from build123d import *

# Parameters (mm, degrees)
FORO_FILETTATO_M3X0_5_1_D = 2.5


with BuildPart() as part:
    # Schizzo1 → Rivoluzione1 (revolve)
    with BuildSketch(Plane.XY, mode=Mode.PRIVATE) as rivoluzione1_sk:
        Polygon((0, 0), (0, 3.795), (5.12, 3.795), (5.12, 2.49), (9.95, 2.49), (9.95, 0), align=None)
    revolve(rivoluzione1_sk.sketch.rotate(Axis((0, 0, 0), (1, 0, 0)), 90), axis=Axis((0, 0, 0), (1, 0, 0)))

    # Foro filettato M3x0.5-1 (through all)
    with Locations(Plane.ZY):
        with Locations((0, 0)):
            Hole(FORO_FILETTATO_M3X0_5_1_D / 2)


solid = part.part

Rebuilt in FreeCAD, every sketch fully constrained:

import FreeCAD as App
import Part
import Sketcher
from FreeCAD import Vector
Q = App.Units.Quantity

doc = App.newDocument("Part")
body = doc.addObject("PartDesign::Body", "Body")

sketch1 = doc.addObject("Sketcher::SketchObject", "Sketch")
body.addObject(sketch1)
sketch1.AttachmentSupport = (doc.XY_Plane, [""])
sketch1.MapMode = "FlatFace"
sketch1.addGeometry([
    Part.LineSegment(Vector(0, 3.8, 0), Vector(0, 0, 0)),
    Part.LineSegment(Vector(0, 0, 0), Vector(9.9, 0, 0)),
    Part.LineSegment(Vector(9.9, 0, 0), Vector(9.9, 2.5, 0)),
    Part.LineSegment(Vector(9.9, 2.5, 0), Vector(5.1, 2.5, 0)),
    Part.LineSegment(Vector(5.1, 2.5, 0), Vector(5.1, 3.8, 0)),
    Part.LineSegment(Vector(5.1, 3.8, 0), Vector(0, 3.8, 0)),
], False)
sketch1.addConstraint([
    Sketcher.Constraint("Coincident", 0, 2, 1, 1),
    Sketcher.Constraint("Coincident", 1, 2, 2, 1),
    Sketcher.Constraint("Coincident", 2, 2, 3, 1),
    Sketcher.Constraint("Coincident", 3, 2, 4, 1),
    Sketcher.Constraint("Coincident", 4, 2, 5, 1),
    Sketcher.Constraint("Coincident", 5, 2, 0, 1),
    Sketcher.Constraint("Vertical", 0),
    Sketcher.Constraint("Horizontal", 1),
    Sketcher.Constraint("Vertical", 2),
    Sketcher.Constraint("Horizontal", 3),
    Sketcher.Constraint("Vertical", 4),
    Sketcher.Constraint("Horizontal", 5),
    Sketcher.Constraint("Coincident", 0, 2, -1, 1),
    Sketcher.Constraint("DistanceX", 1, 1, 1, 2, Q("9.95 mm")),
    Sketcher.Constraint("DistanceX", 3, 2, 3, 1, Q("4.83 mm")),
    Sketcher.Constraint("DistanceY", 2, 1, 2, 2, Q("2.49 mm")),
    Sketcher.Constraint("DistanceY", 0, 2, 0, 1, Q("3.795 mm")),
])
revolution = doc.addObject("PartDesign::Revolution", "Revolution")
body.addObject(revolution)
revolution.Profile = sketch1
revolution.ReferenceAxis = (sketch1, ["H_Axis"])
revolution.Angle = 360

sketch2 = doc.addObject("Sketcher::SketchObject", "Sketch001")
body.addObject(sketch2)
sketch2.AttachmentSupport = (doc.YZ_Plane, [""])
sketch2.MapMode = "FlatFace"
sketch2.addGeometry(Part.Circle(Vector(0, 0, 0), Vector(0, 0, 1), 1.2), False)
sketch2.addConstraint([
    Sketcher.Constraint("Coincident", 0, 3, -1, 1),
    Sketcher.Constraint("Diameter", 0, Q("2.5 mm")),
])
doc.recompute()
hole = doc.addObject("PartDesign::Hole", "Hole")
body.addObject(hole)
hole.Profile = sketch2
hole.ThreadType = "None"
hole.Diameter = 2.5
hole.DepthType = "ThroughAll"
hole.Reversed = True

doc.recompute()
